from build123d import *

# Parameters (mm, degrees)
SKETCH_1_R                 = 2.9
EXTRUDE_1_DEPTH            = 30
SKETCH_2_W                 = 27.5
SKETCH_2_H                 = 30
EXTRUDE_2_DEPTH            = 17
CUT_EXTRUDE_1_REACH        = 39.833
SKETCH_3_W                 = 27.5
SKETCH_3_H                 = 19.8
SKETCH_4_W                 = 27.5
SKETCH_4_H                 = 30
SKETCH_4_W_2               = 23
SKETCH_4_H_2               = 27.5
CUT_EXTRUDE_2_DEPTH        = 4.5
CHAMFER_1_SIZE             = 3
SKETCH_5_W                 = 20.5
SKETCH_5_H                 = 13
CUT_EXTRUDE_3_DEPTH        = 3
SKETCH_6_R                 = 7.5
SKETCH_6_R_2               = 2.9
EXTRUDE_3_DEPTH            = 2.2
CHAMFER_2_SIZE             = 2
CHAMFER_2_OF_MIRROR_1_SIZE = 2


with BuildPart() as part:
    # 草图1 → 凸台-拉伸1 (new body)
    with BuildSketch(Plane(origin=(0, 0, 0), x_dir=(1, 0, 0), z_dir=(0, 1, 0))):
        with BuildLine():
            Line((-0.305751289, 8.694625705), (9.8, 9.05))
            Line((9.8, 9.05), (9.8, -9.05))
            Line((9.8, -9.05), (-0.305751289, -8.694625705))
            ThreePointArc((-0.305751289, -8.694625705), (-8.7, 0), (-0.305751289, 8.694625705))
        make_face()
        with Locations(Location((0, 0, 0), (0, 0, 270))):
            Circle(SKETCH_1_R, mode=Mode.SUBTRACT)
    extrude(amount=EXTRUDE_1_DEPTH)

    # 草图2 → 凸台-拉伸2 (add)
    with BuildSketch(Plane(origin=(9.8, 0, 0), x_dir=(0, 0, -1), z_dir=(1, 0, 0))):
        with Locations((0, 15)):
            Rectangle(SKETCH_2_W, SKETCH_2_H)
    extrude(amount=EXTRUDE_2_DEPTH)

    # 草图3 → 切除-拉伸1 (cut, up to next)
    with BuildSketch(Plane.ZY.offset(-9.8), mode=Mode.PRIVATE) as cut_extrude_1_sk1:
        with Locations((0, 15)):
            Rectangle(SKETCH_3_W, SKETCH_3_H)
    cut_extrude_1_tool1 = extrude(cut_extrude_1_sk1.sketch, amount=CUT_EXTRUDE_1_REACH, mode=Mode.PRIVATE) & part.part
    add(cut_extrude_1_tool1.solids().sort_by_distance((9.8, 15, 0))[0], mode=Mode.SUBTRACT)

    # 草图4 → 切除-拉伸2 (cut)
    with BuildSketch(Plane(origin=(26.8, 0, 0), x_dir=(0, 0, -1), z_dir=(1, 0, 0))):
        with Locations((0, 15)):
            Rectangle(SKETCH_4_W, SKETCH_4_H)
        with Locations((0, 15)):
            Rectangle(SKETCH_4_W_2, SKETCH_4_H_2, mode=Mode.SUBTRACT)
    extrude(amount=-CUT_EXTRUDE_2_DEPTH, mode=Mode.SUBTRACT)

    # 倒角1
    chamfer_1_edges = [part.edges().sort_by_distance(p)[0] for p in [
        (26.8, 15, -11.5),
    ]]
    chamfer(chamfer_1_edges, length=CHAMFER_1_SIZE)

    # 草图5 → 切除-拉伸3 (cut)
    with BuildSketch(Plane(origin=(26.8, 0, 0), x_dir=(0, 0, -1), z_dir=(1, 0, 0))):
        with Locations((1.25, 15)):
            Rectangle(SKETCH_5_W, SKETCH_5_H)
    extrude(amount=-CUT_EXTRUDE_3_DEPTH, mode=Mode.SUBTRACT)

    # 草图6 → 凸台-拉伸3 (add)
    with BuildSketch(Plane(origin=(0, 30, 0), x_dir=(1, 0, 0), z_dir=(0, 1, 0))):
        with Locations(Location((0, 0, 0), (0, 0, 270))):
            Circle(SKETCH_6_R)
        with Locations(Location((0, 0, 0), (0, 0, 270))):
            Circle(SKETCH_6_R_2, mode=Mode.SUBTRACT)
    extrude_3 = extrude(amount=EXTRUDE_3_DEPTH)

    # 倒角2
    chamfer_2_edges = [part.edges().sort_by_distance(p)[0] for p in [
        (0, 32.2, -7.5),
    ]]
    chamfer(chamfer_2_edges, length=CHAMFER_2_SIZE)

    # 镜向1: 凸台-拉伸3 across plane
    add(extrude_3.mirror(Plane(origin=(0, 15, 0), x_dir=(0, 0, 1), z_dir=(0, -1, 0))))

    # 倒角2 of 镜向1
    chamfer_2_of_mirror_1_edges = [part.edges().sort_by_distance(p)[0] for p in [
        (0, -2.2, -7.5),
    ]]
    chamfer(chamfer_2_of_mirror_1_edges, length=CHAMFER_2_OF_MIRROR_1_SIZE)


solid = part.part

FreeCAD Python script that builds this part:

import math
import FreeCAD as App
import Part
import Sketcher
from FreeCAD import Vector


def edges_at(feature, points):
    """Names of the edges that pass closest to the given points."""
    edges = feature.Shape.Edges
    near = lambda p: min(range(len(edges)), key=lambda i: edges[i].distToShape(Part.Vertex(*p))[0])
    return sorted({f"Edge{near(p) + 1}" for p in points})


def add_polygon(sketch, points):
    """Adds a closed chain of lines whose ends are joined by coincident constraints."""
    first, n = sketch.GeometryCount, len(points)
    for a, b in zip(points, points[1:] + points[:1]):
        sketch.addGeometry(Part.LineSegment(App.Vector(*a, 0), App.Vector(*b, 0)), False)
    for i in range(n):
        sketch.addConstraint(Sketcher.Constraint("Coincident", first + i, 2, first + (i + 1) % n, 1))

doc = App.newDocument("Part")
body = doc.addObject("PartDesign::Body", "Body")

sketch1 = body.newObject("Sketcher::SketchObject", "Sketch")
sketch1.AttachmentSupport = (doc.getObject("XZ_Plane"), [""])
sketch1.MapMode = "FlatFace"
sketch1.addGeometry([
    Part.LineSegment(Vector(9.8, -9.05, 0), Vector(-0.305751, -8.694626, 0)),
    Part.ArcOfCircle(Part.Circle(Vector(0, 0, 0), Vector(0, 0, 1), 8.7), math.radians(92.014008), math.radians(267.985992)),
    Part.LineSegment(Vector(-0.305751, 8.694626, 0), Vector(9.8, 9.05, 0)),
    Part.LineSegment(Vector(9.8, 9.05, 0), Vector(9.8, -9.05, 0)),
    Part.Circle(Vector(0, 0, 0), Vector(0, 0, 1), 2.9),
], False)
sketch1.addConstraint([
    Sketcher.Constraint("Tangent", 0, 2, 1, 2),
    Sketcher.Constraint("Tangent", 1, 1, 2, 1),
    Sketcher.Constraint("Coincident", 2, 2, 3, 1),
    Sketcher.Constraint("Coincident", 3, 2, 0, 1),
    Sketcher.Constraint("Vertical", 3),
    Sketcher.Constraint("Coincident", 1, 3, -1, 1),
    Sketcher.Constraint("Coincident", 4, 3, -1, 1),
    Sketcher.Constraint("Vertical", 0, 2, 1, 1),
    Sketcher.Constraint("Diameter", 4, 5.8),
    Sketcher.Constraint("Radius", 1, 8.7),
    Sketcher.Constraint("DistanceY", 3, 2, 3, 1, 18.1),
    Sketcher.Constraint("DistanceX", -1, 1, 2, 2, 9.8),
])
pad1 = body.newObject("PartDesign::Pad", "Pad")
pad1.Profile = sketch1
pad1.Length = 30
pad1.Reversed = True

sketch2 = body.newObject("Sketcher::SketchObject", "Sketch001")
sketch2.AttachmentSupport = (doc.getObject("YZ_Plane"), [""])
sketch2.MapMode = "FlatFace"
sketch2.AttachmentOffset = App.Placement(Vector(0, 0, 9.8), App.Rotation())
add_polygon(sketch2, [(30, 13.75), (0, 13.75), (0, -13.75), (30, -13.75)])
sketch2.addConstraint([
    Sketcher.Constraint("Horizontal", 0),
    Sketcher.Constraint("Vertical", 1),
    Sketcher.Constraint("Horizontal", 2),
    Sketcher.Constraint("Vertical", 3),
    Sketcher.Constraint("Symmetric", 0, 2, 1, 2, -1, 1),
    Sketcher.Constraint("DistanceX", 0, 2, 0, 1, 30.0),
    Sketcher.Constraint("DistanceY", 1, 2, 1, 1, 27.5),
])
pad2 = body.newObject("PartDesign::Pad", "Pad001")
pad2.Profile = sketch2
pad2.Length = 17

sketch3 = body.newObject("Sketcher::SketchObject", "Sketch002")
sketch3.AttachmentSupport = (doc.getObject("YZ_Plane"), [""])
sketch3.MapMode = "FlatFace"
sketch3.AttachmentOffset = App.Placement(Vector(0, 0, 9.8), App.Rotation())
add_polygon(sketch3, [(24.9, -13.75), (5.1, -13.75), (5.1, 13.75), (24.9, 13.75)])
sketch3.addConstraint([
    Sketcher.Constraint("Horizontal", 0),
    Sketcher.Constraint("Vertical", 1),
    Sketcher.Constraint("Horizontal", 2),
    Sketcher.Constraint("Vertical", 3),
    Sketcher.Constraint("DistanceX", 0, 2, 0, 1, 19.8),
    Sketcher.Constraint("DistanceY", 1, 1, 1, 2, 27.5),
    Sketcher.Constraint("DistanceX", -1, 1, 0, 2, 5.1),
    Sketcher.Constraint("DistanceY", 0, 2, -1, 1, 13.75),
])
pocket1 = body.newObject("PartDesign::Pocket", "Pocket")
pocket1.Profile = sketch3
pocket1.Type = "UpToFirst"

sketch4 = body.newObject("Sketcher::SketchObject", "Sketch003")
sketch4.AttachmentSupport = (doc.getObject("YZ_Plane"), [""])
sketch4.MapMode = "FlatFace"
sketch4.AttachmentOffset = App.Placement(Vector(0, 0, 26.8), App.Rotation())
add_polygon(sketch4, [(30, 13.75), (0, 13.75), (0, -13.75), (30, -13.75)])
add_polygon(sketch4, [(1.25, -11.5), (1.25, 11.5), (28.75, 11.5), (28.75, -11.5)])
sketch4.addConstraint([
    Sketcher.Constraint("Horizontal", 0),
    Sketcher.Constraint("Vertical", 1),
    Sketcher.Constraint("Horizontal", 2),
    Sketcher.Constraint("Vertical", 3),
    Sketcher.Constraint("Vertical", 4),
    Sketcher.Constraint("Horizontal", 5),
    Sketcher.Constraint("Vertical", 6),
    Sketcher.Constraint("Horizontal", 7),
    Sketcher.Constraint("Symmetric", 0, 2, 1, 2, -1, 1),
    Sketcher.Constraint("Equal", 7, 1),
    Sketcher.Constraint("DistanceX", 0, 2, 0, 1, 30.0),
    Sketcher.Constraint("DistanceY", 4, 1, 4, 2, 23.0),
    Sketcher.Constraint("DistanceX", 5, 1, 5, 2, 27.5),
    Sketcher.Constraint("DistanceY", -1, 1, 4, 2, 11.5),
    Sketcher.Constraint("DistanceX", -1, 1, 4, 2, 1.25),
])
pocket2 = body.newObject("PartDesign::Pocket", "Pocket001")
pocket2.Profile = sketch4
pocket2.Length = 4.5
doc.recompute()

chamfer = body.newObject("PartDesign::Chamfer", "Chamfer")
chamfer.Base = (pocket2, edges_at(pocket2, [(26.8, 15, -11.5)]))
chamfer.Size = 3

sketch5 = body.newObject("Sketcher::SketchObject", "Sketch004")
sketch5.AttachmentSupport = (doc.getObject("YZ_Plane"), [""])
sketch5.MapMode = "FlatFace"
sketch5.AttachmentOffset = App.Placement(Vector(0, 0, 26.8), App.Rotation())
add_polygon(sketch5, [(21.5, 9), (8.5, 9), (8.5, -11.5), (21.5, -11.5)])
sketch5.addConstraint([
    Sketcher.Constraint("Horizontal", 0),
    Sketcher.Constraint("Vertical", 1),
    Sketcher.Constraint("Horizontal", 2),
    Sketcher.Constraint("Vertical", 3),
    Sketcher.Constraint("DistanceX", 0, 2, 0, 1, 13.0),
    Sketcher.Constraint("DistanceY", 1, 2, 1, 1, 20.5),
    Sketcher.Constraint("DistanceY", -1, 1, 0, 2, 9.0),
    Sketcher.Constraint("DistanceX", -1, 1, 0, 2, 8.5),
])
pocket3 = body.newObject("PartDesign::Pocket", "Pocket002")
pocket3.Profile = sketch5
pocket3.Length = 3

sketch6 = body.newObject("Sketcher::SketchObject", "Sketch005")
sketch6.AttachmentSupport = (doc.getObject("XZ_Plane"), [""])
sketch6.MapMode = "FlatFace"
sketch6.AttachmentOffset = App.Placement(Vector(0, 0, -30), App.Rotation())
sketch6.addGeometry([
    Part.Circle(Vector(0, 0, 0), Vector(0, 0, 1), 7.5),
    Part.Circle(Vector(0, 0, 0), Vector(0, 0, 1), 2.9),
], False)
sketch6.addConstraint([
    Sketcher.Constraint("Coincident", 0, 3, -1, 1),
    Sketcher.Constraint("Coincident", 1, 3, -1, 1),
    Sketcher.Constraint("Diameter", 0, 15.0),
    Sketcher.Constraint("Diameter", 1, 5.8),
])
pad3 = body.newObject("PartDesign::Pad", "Pad002")
pad3.Profile = sketch6
pad3.Length = 2.2
pad3.Reversed = True
doc.recompute()

chamfer2 = body.newObject("PartDesign::Chamfer", "Chamfer001")
chamfer2.Base = (pad3, edges_at(pad3, [(0, 32.2, -7.5)]))
chamfer2.Size = 2
doc.recompute()

datumplane = body.newObject("PartDesign::Plane", "DatumPlane")
datumplane.AttachmentSupport = (doc.getObject("XZ_Plane"), [""])
datumplane.MapMode = "FlatFace"
datumplane.AttachmentOffset = App.Placement(Vector(0, 0, -15), App.Rotation())
mirrored = body.newObject("PartDesign::Mirrored", "Mirrored")
mirrored.Originals = [pad3]
mirrored.MirrorPlane = (datumplane, [""])
body.Tip = mirrored
doc.recompute()

chamfer3 = body.newObject("PartDesign::Chamfer", "Chamfer002")
chamfer3.Base = (mirrored, edges_at(mirrored, [(0, -2.2, -7.5)]))
chamfer3.Size = 2

doc.recompute()
